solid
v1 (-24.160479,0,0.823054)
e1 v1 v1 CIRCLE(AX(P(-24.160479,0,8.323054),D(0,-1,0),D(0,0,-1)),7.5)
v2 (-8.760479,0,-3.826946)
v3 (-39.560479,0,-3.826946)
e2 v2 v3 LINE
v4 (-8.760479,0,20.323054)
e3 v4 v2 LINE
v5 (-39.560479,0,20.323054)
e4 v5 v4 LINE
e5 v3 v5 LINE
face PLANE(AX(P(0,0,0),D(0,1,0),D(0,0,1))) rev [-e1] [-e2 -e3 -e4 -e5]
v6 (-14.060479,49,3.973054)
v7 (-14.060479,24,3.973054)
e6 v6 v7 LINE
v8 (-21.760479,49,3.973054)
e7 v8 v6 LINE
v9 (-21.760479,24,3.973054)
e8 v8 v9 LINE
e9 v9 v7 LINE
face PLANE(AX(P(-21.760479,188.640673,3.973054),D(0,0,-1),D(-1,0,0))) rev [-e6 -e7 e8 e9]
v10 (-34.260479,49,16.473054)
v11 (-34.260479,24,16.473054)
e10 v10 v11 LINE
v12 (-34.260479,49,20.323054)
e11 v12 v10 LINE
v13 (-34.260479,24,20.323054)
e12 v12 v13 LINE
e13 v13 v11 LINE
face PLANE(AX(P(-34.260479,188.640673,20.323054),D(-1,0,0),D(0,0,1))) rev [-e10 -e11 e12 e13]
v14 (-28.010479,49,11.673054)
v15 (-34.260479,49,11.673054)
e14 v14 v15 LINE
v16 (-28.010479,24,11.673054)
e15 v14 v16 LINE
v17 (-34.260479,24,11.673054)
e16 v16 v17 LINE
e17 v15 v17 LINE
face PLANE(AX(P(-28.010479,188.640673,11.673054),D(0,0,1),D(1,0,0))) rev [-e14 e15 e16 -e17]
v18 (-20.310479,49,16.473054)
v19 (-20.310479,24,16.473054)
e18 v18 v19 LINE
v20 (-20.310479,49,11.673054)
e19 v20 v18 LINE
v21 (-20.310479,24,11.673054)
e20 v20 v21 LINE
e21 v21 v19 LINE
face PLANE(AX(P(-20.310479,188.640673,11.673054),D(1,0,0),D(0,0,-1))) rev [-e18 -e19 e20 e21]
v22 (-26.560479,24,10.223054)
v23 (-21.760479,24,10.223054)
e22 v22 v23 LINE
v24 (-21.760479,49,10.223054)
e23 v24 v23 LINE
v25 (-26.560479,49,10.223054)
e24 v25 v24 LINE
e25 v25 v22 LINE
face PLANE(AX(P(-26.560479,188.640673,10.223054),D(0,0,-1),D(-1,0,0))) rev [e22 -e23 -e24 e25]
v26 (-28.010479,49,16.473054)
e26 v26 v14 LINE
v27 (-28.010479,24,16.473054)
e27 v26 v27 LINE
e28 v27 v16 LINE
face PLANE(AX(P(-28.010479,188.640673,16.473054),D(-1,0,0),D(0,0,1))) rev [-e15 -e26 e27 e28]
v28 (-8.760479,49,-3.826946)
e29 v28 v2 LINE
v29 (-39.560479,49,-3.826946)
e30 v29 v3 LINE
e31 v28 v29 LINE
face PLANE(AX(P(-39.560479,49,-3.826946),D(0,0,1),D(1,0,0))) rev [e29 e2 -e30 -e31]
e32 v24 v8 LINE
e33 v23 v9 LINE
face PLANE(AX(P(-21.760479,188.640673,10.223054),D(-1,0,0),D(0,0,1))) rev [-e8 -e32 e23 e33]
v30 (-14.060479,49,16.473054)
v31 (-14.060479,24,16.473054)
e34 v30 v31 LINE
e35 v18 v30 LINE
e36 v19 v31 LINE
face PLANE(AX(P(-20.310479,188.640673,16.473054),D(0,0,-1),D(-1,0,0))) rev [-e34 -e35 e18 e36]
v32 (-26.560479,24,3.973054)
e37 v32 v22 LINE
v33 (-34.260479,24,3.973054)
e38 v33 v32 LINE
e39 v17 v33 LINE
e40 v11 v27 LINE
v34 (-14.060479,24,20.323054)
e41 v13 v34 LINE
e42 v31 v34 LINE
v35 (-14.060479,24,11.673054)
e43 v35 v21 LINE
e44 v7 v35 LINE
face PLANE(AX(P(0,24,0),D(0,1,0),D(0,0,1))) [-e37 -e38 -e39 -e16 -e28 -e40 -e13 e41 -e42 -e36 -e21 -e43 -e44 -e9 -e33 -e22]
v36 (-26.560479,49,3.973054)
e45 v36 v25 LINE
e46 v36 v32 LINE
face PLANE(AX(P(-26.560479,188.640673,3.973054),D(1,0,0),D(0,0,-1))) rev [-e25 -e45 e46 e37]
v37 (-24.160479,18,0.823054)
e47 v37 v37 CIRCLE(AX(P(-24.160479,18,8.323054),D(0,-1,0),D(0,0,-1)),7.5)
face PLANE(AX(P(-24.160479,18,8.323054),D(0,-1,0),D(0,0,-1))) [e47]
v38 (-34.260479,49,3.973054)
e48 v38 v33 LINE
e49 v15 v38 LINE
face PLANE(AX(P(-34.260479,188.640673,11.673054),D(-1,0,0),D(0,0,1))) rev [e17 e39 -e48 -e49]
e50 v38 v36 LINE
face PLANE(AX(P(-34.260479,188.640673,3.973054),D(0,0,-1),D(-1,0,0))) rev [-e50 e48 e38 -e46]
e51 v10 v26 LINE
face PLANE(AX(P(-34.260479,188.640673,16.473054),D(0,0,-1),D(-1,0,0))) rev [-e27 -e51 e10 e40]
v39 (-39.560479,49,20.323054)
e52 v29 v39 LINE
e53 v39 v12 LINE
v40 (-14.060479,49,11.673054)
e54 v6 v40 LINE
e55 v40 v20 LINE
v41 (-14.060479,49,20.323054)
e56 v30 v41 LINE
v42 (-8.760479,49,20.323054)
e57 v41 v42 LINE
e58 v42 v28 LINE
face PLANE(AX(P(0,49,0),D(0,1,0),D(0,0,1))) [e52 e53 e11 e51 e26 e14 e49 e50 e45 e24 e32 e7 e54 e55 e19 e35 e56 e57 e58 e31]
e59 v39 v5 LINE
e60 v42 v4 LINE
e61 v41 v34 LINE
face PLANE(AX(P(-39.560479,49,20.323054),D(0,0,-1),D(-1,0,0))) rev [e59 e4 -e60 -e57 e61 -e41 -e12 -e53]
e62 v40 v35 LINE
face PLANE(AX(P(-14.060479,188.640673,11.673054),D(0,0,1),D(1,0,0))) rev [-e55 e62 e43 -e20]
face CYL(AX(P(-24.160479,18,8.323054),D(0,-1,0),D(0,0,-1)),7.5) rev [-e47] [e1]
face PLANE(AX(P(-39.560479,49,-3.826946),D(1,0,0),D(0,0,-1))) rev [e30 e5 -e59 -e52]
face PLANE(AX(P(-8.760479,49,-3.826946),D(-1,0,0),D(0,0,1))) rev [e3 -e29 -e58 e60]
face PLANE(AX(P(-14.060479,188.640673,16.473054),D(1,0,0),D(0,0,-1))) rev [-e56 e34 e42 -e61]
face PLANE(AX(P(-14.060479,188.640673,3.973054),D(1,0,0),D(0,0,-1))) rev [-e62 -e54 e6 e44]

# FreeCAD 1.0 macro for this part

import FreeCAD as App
import Part
import Sketcher
from FreeCAD import Vector
Q = App.Units.Quantity


def add_polygon(sketch, points):
    """Adds a closed chain of lines whose ends are joined by coincident constraints."""
    first, n = sketch.GeometryCount, len(points)
    for a, b in zip(points, points[1:] + points[:1]):
        sketch.addGeometry(Part.LineSegment(App.Vector(*a, 0), App.Vector(*b, 0)), False)
    for i in range(n):
        sketch.addConstraint(Sketcher.Constraint("Coincident", first + i, 2, first + (i + 1) % n, 1))

doc = App.newDocument("Part")
body = doc.addObject("PartDesign::Body", "Body")

sketch1 = body.newObject("Sketcher::SketchObject", "Sketch")
sketch1.AttachmentSupport = (doc.getObject("XZ_Plane"), [""])
sketch1.MapMode = "FlatFace"
add_polygon(sketch1, [(-40, -4), (-40, 20), (-9, 20), (-9, -4)])
sketch1.addConstraint(Sketcher.Constraint("Vertical", 0))
sketch1.addConstraint(Sketcher.Constraint("Horizontal", 1))
sketch1.addConstraint(Sketcher.Constraint("Vertical", 2))
sketch1.addConstraint(Sketcher.Constraint("Horizontal", 3))
sketch1.addConstraint(Sketcher.Constraint("DistanceX", 1, 1, 1, 2, Q("30.8 mm")))
sketch1.addConstraint(Sketcher.Constraint("DistanceY", 0, 1, 0, 2, Q("24.15 mm")))
sketch1.addConstraint(Sketcher.Constraint("DistanceX", 0, 2, -1, 1, Q("39.560479 mm")))
sketch1.addConstraint(Sketcher.Constraint("DistanceY", -1, 1, 0, 2, Q("20.323054 mm")))
pad1 = body.newObject("PartDesign::Pad", "Pad")
pad1.Profile = sketch1
pad1.Length = 49
pad1.Reversed = True

sketch2 = body.newObject("Sketcher::SketchObject", "Sketch001")
sketch2.AttachmentSupport = (doc.getObject("XZ_Plane"), [""])
sketch2.MapMode = "FlatFace"
sketch2.addGeometry(Part.Circle(Vector(-24, 8, 0), Vector(0, 0, 1), 8), False)
sketch2.addConstraint(Sketcher.Constraint("Diameter", 0, Q("15 mm")))
sketch2.addConstraint(Sketcher.Constraint("DistanceX", 0, 3, -1, 1, Q("24.160479 mm")))
sketch2.addConstraint(Sketcher.Constraint("DistanceY", -1, 1, 0, 3, Q("8.323054 mm")))
pocket1 = body.newObject("PartDesign::Pocket", "Pocket")
pocket1.Profile = sketch2
pocket1.Length = 18

sketch3 = body.newObject("Sketcher::SketchObject", "Sketch002")
sketch3.AttachmentSupport = (doc.getObject("XZ_Plane"), [""])
sketch3.MapMode = "FlatFace"
sketch3.AttachmentOffset = App.Placement(Vector(0, 0, -49), App.Rotation())
add_polygon(sketch3, [(-34.3, 16.5), (-34.3, 261), (-14.1, 261), (-14.1, 16.5), (-20.3, 16.5), (-20.3, 11.7), (-14.1, 11.7), (-14.1, 4), (-21.8, 4), (-21.8, 10.2), (-26.6, 10.2), (-26.6, 4), (-34.3, 4), (-34.3, 11.7), (-28, 11.7), (-28, 16.5)])
sketch3.addConstraint(Sketcher.Constraint("Vertical", 0))
sketch3.addConstraint(Sketcher.Constraint("Horizontal", 1))
sketch3.addConstraint(Sketcher.Constraint("Vertical", 2))
sketch3.addConstraint(Sketcher.Constraint("Horizontal", 3))
sketch3.addConstraint(Sketcher.Constraint("Vertical", 4))
sketch3.addConstraint(Sketcher.Constraint("Horizontal", 5))
sketch3.addConstraint(Sketcher.Constraint("Vertical", 6))
sketch3.addConstraint(Sketcher.Constraint("Horizontal", 7))
sketch3.addConstraint(Sketcher.Constraint("Vertical", 8))
sketch3.addConstraint(Sketcher.Constraint("Horizontal", 9))
sketch3.addConstraint(Sketcher.Constraint("Vertical", 10))
sketch3.addConstraint(Sketcher.Constraint("Horizontal", 11))
sketch3.addConstraint(Sketcher.Constraint("Vertical", 12))
sketch3.addConstraint(Sketcher.Constraint("Horizontal", 13))
sketch3.addConstraint(Sketcher.Constraint("Vertical", 14))
sketch3.addConstraint(Sketcher.Constraint("Horizontal", 15))
sketch3.addConstraint(Sketcher.Constraint("Horizontal", 7, 2, 10, 2))
sketch3.addConstraint(Sketcher.Constraint("Horizontal", 5, 2, 12, 2))
sketch3.addConstraint(Sketcher.Constraint("Horizontal", 3, 2, 14, 2))
sketch3.addConstraint(Sketcher.Constraint("Vertical", 2, 2, 5, 2))
sketch3.addConstraint(Sketcher.Constraint("Vertical", 0, 2, 11, 2))
sketch3.addConstraint(Sketcher.Constraint("Equal", 7, 11))
sketch3.addConstraint(Sketcher.Constraint("Equal", 5, 13))
sketch3.addConstraint(Sketcher.Constraint("Equal", 9, 4))
sketch3.addConstraint(Sketcher.Constraint("Equal", 11, 6))
sketch3.addConstraint(Sketcher.Constraint("Equal", 15, 8))
sketch3.addConstraint(Sketcher.Constraint("DistanceX", 1, 1, 1, 2, Q("20.2 mm")))
sketch3.addConstraint(Sketcher.Constraint("DistanceX", 7, 2, 7, 1, Q("7.7 mm")))
sketch3.addConstraint(Sketcher.Constraint("DistanceX", 3, 2, 3, 1, Q("6.25 mm")))
sketch3.addConstraint(Sketcher.Constraint("DistanceY", 0, 1, 0, 2, Q("244.574963 mm")))
sketch3.addConstraint(Sketcher.Constraint("DistanceX", 0, 2, -1, 1, Q("34.260479 mm")))
sketch3.addConstraint(Sketcher.Constraint("DistanceY", -1, 1, 0, 2, Q("261.048017 mm")))
pocket2 = body.newObject("PartDesign::Pocket", "Pocket001")
pocket2.Profile = sketch3
pocket2.Type = "TwoLengths"
pocket2.Length = 67.174451
pocket2.Length2 = 25

doc.recompute()
